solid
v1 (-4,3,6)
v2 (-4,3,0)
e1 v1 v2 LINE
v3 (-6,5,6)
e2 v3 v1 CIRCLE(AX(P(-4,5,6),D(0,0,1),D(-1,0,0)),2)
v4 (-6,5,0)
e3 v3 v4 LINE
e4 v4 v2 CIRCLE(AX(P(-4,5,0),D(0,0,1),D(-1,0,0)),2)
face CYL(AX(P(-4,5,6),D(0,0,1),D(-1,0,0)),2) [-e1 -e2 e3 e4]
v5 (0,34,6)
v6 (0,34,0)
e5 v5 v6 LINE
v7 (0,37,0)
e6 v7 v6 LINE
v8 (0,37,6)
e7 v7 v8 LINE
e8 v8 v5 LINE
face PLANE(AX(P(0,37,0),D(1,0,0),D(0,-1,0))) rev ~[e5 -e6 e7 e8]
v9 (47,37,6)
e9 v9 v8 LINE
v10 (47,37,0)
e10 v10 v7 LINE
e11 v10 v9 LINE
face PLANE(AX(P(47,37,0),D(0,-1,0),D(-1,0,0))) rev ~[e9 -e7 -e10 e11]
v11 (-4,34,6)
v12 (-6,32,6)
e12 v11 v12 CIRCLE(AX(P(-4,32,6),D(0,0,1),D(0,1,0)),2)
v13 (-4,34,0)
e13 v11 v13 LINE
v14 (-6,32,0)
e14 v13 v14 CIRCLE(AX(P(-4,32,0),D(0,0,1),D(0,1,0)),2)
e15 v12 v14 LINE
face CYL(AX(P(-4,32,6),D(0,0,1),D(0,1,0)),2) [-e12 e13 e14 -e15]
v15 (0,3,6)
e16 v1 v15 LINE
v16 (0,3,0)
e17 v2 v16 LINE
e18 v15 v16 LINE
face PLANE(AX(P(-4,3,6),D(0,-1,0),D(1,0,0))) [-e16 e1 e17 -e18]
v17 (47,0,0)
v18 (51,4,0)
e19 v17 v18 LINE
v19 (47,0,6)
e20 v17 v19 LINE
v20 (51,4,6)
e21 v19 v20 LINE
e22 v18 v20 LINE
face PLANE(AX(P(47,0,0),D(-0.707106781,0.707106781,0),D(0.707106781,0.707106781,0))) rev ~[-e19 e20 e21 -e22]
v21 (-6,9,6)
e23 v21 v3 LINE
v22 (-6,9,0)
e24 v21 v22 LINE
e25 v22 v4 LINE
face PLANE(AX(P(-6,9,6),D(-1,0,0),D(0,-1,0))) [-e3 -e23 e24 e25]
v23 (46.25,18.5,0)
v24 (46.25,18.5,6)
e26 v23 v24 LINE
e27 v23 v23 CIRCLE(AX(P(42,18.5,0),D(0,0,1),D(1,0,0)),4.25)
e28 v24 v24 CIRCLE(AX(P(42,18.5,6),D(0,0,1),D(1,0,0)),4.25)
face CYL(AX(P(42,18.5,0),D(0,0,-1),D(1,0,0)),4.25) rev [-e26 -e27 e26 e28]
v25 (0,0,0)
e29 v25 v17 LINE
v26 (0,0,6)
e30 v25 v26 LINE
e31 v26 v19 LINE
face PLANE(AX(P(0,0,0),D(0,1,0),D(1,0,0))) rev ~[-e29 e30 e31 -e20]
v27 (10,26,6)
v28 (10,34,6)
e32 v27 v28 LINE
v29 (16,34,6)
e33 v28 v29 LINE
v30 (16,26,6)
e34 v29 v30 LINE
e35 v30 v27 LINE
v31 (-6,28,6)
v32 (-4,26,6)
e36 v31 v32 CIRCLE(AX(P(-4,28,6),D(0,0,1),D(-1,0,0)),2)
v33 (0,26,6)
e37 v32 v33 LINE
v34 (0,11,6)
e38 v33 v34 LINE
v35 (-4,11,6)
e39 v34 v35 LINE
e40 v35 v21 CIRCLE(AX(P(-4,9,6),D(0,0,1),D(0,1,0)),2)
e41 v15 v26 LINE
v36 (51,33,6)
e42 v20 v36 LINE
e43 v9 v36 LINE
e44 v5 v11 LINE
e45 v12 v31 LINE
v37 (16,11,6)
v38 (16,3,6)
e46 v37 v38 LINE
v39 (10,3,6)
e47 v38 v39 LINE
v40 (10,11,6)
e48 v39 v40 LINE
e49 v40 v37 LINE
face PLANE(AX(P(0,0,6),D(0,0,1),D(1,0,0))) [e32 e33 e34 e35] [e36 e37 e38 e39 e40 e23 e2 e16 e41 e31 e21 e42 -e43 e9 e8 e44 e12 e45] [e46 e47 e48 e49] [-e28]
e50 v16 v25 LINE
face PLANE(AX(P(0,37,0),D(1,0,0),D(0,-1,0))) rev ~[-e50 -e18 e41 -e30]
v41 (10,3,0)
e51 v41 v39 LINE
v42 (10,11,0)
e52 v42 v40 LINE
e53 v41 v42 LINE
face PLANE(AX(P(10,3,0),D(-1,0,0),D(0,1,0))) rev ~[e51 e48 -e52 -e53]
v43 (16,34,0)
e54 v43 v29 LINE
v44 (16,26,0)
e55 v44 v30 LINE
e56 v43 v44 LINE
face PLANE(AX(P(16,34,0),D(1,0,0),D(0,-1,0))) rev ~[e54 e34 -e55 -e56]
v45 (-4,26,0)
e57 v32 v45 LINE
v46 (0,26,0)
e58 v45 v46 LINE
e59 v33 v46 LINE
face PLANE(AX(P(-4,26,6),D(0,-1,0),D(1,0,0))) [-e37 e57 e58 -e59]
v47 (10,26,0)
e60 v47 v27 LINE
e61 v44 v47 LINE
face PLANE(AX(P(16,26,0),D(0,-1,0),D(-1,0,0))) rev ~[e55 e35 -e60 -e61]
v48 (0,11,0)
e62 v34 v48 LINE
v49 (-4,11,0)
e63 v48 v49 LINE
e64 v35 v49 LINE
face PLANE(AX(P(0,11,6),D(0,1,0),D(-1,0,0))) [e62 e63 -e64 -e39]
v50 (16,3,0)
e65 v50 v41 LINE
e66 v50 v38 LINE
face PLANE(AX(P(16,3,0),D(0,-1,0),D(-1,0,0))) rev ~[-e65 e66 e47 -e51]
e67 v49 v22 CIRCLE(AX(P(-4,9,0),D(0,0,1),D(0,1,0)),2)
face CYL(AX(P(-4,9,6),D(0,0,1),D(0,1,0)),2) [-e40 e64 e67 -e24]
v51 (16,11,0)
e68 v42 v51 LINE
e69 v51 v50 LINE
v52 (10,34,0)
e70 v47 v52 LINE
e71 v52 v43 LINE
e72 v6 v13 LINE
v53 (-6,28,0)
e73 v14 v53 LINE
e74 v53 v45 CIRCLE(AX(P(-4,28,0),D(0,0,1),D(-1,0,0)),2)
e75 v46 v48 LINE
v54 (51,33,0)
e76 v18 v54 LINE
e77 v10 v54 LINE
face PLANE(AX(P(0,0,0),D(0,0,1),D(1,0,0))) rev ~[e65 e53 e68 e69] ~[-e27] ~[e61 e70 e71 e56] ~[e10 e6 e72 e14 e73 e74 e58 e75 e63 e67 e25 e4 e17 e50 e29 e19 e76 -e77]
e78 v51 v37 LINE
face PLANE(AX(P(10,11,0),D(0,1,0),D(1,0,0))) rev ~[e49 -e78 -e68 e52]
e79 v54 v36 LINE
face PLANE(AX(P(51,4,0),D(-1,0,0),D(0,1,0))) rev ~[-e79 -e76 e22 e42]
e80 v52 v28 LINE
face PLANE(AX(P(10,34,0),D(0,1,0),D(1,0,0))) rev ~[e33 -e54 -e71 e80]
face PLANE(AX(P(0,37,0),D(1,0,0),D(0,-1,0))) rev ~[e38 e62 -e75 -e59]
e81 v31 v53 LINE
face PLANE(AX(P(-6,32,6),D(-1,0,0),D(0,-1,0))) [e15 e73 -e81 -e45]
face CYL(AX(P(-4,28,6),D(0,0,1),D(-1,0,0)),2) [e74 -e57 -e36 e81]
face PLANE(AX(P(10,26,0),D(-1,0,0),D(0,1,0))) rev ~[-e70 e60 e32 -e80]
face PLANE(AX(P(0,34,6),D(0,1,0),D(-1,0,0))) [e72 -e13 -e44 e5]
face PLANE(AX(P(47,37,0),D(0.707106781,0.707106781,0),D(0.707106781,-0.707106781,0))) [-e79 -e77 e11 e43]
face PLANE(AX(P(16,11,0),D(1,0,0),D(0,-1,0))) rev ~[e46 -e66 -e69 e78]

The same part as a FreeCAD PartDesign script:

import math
import FreeCAD as App
import Part
import Sketcher
Q = App.Units.Quantity

doc = App.newDocument("Part")
body = doc.addObject("PartDesign::Body", "Body")

sketch1 = body.newObject("Sketcher::SketchObject", "Sketch")
sketch1.AttachmentSupport = (doc.getObject("XY_Plane"), [""])
sketch1.MapMode = "FlatFace"
sketch1.addGeometry([
    Part.LineSegment(App.Vector(0, 37, 0), App.Vector(0, 0, 0)),
    Part.LineSegment(App.Vector(0, 0, 0), App.Vector(47, 0, 0)),
    Part.LineSegment(App.Vector(47, 0, 0), App.Vector(51, 4, 0)),
    Part.LineSegment(App.Vector(51, 4, 0), App.Vector(51, 33, 0)),
    Part.LineSegment(App.Vector(51, 33, 0), App.Vector(47, 37, 0)),
    Part.LineSegment(App.Vector(47, 37, 0), App.Vector(0, 37, 0)),
    Part.LineSegment(App.Vector(10, 3, 0), App.Vector(10, 11, 0)),
    Part.LineSegment(App.Vector(10, 11, 0), App.Vector(16, 11, 0)),
    Part.LineSegment(App.Vector(16, 11, 0), App.Vector(16, 3, 0)),
    Part.LineSegment(App.Vector(16, 3, 0), App.Vector(10, 3, 0)),
    Part.LineSegment(App.Vector(10, 26, 0), App.Vector(10, 34, 0)),
    Part.LineSegment(App.Vector(10, 34, 0), App.Vector(16, 34, 0)),
    Part.LineSegment(App.Vector(16, 34, 0), App.Vector(16, 26, 0)),
    Part.LineSegment(App.Vector(16, 26, 0), App.Vector(10, 26, 0)),
    Part.Circle(App.Vector(42, 18.5, 0), App.Vector(0, 0, 1), 4.2),
], False)
sketch1.addConstraint([
    Sketcher.Constraint("Coincident", 0, 2, 1, 1),
    Sketcher.Constraint("Coincident", 1, 2, 2, 1),
    Sketcher.Constraint("Coincident", 2, 2, 3, 1),
    Sketcher.Constraint("Coincident", 3, 2, 4, 1),
    Sketcher.Constraint("Coincident", 4, 2, 5, 1),
    Sketcher.Constraint("Coincident", 5, 2, 0, 1),
    Sketcher.Constraint("Coincident", 6, 2, 7, 1),
    Sketcher.Constraint("Coincident", 7, 2, 8, 1),
    Sketcher.Constraint("Coincident", 8, 2, 9, 1),
    Sketcher.Constraint("Coincident", 9, 2, 6, 1),
    Sketcher.Constraint("Coincident", 10, 2, 11, 1),
    Sketcher.Constraint("Coincident", 11, 2, 12, 1),
    Sketcher.Constraint("Coincident", 12, 2, 13, 1),
    Sketcher.Constraint("Coincident", 13, 2, 10, 1),
    Sketcher.Constraint("Vertical", 0),
    Sketcher.Constraint("Horizontal", 1),
    Sketcher.Constraint("Vertical", 3),
    Sketcher.Constraint("Horizontal", 5),
    Sketcher.Constraint("Vertical", 6),
    Sketcher.Constraint("Horizontal", 7),
    Sketcher.Constraint("Vertical", 8),
    Sketcher.Constraint("Horizontal", 9),
    Sketcher.Constraint("Vertical", 10),
    Sketcher.Constraint("Horizontal", 11),
    Sketcher.Constraint("Vertical", 12),
    Sketcher.Constraint("Horizontal", 13),
    Sketcher.Constraint("Coincident", 0, 2, -1, 1),
    Sketcher.Constraint("Perpendicular", 2, 4),
    Sketcher.Constraint("Vertical", 1, 2, 4, 2),
    Sketcher.Constraint("Vertical", 9, 2, 10, 2),
    Sketcher.Constraint("Vertical", 8, 2, 11, 2),
    Sketcher.Constraint("Equal", 8, 10),
    Sketcher.Constraint("Equal", 2, 4),
    Sketcher.Constraint("Diameter", 14, Q("8.5 mm")),
    Sketcher.Constraint("DistanceX", 7, 1, 7, 2, Q("6 mm")),
    Sketcher.Constraint("DistanceY", 0, 2, 0, 1, Q("37 mm")),
    Sketcher.Constraint("DistanceY", 6, 1, 6, 2, Q("8 mm")),
    Sketcher.Constraint("DistanceY", -1, 1, 2, 2, Q("4 mm")),
    Sketcher.Constraint("DistanceX", -1, 1, 6, 2, Q("10 mm")),
    Sketcher.Constraint("DistanceY", -1, 1, 12, 2, Q("26 mm")),
    Sketcher.Constraint("DistanceX", 14, 3, 2, 2, Q("9 mm")),
    Sketcher.Constraint("DistanceY", 6, 2, 5, 2, Q("26 mm")),
    Sketcher.Constraint("DistanceX", 6, 2, 14, 3, Q("32 mm")),
    Sketcher.Constraint("DistanceY", -1, 1, 14, 3, Q("18.5 mm")),
])
pad1 = body.newObject("PartDesign::Pad", "Pad")
pad1.Profile = sketch1
pad1.Length = 6

sketch2 = body.newObject("Sketcher::SketchObject", "Sketch001")
sketch2.AttachmentSupport = (doc.getObject("XY_Plane"), [""])
sketch2.MapMode = "FlatFace"
sketch2.AttachmentOffset = App.Placement(App.Vector(0, 0, 6), App.Rotation())
sketch2.addGeometry([
    Part.LineSegment(App.Vector(0, 3, 0), App.Vector(0, 11, 0)),
    Part.LineSegment(App.Vector(0, 11, 0), App.Vector(-4, 11, 0)),
    Part.ArcOfCircle(Part.Circle(App.Vector(-4, 9, 0), App.Vector(0, 0, 1), 2), math.radians(90), math.radians(180)),
    Part.LineSegment(App.Vector(-6, 9, 0), App.Vector(-6, 5, 0)),
    Part.ArcOfCircle(Part.Circle(App.Vector(-4, 5, 0), App.Vector(0, 0, 1), 2), math.radians(180), math.radians(270)),
    Part.LineSegment(App.Vector(-4, 3, 0), App.Vector(0, 3, 0)),
    Part.LineSegment(App.Vector(0, 26, 0), App.Vector(0, 34, 0)),
    Part.LineSegment(App.Vector(0, 34, 0), App.Vector(-4, 34, 0)),
    Part.ArcOfCircle(Part.Circle(App.Vector(-4, 32, 0), App.Vector(0, 0, 1), 2), math.radians(90), math.radians(180)),
    Part.LineSegment(App.Vector(-6, 32, 0), App.Vector(-6, 28, 0)),
    Part.ArcOfCircle(Part.Circle(App.Vector(-4, 28, 0), App.Vector(0, 0, 1), 2), math.radians(180), math.radians(270)),
    Part.LineSegment(App.Vector(-4, 26, 0), App.Vector(0, 26, 0)),
], False)
sketch2.addConstraint([
    Sketcher.Constraint("Coincident", 0, 2, 1, 1),
    Sketcher.Constraint("Tangent", 1, 2, 2, 1),
    Sketcher.Constraint("Tangent", 2, 2, 3, 1),
    Sketcher.Constraint("Tangent", 3, 2, 4, 1),
    Sketcher.Constraint("Tangent", 4, 2, 5, 1),
    Sketcher.Constraint("Coincident", 5, 2, 0, 1),
    Sketcher.Constraint("Coincident", 6, 2, 7, 1),
    Sketcher.Constraint("Tangent", 7, 2, 8, 1),
    Sketcher.Constraint("Tangent", 8, 2, 9, 1),
    Sketcher.Constraint("Tangent", 9, 2, 10, 1),
    Sketcher.Constraint("Tangent", 10, 2, 11, 1),
    Sketcher.Constraint("Coincident", 11, 2, 6, 1),
    Sketcher.Constraint("Vertical", 0),
    Sketcher.Constraint("Horizontal", 1),
    Sketcher.Constraint("Vertical", 3),
    Sketcher.Constraint("Horizontal", 5),
    Sketcher.Constraint("Vertical", 6),
    Sketcher.Constraint("Horizontal", 7),
    Sketcher.Constraint("Vertical", 9),
    Sketcher.Constraint("Horizontal", 11),
    Sketcher.Constraint("Equal", 2, 4),
    Sketcher.Constraint("Equal", 4, 8),
    Sketcher.Constraint("Equal", 8, 10),
    Sketcher.Constraint("PointOnObject", 0, 2, -2),
    Sketcher.Constraint("PointOnObject", 6, 2, -2),
    Sketcher.Constraint("Vertical", 4, 3, 8, 3),
    Sketcher.Constraint("Equal", 11, 3),
    Sketcher.Constraint("Equal", 0, 6),
    Sketcher.Constraint("Radius", 2, Q("2 mm")),
    Sketcher.Constraint("DistanceY", 0, 1, 0, 2, Q("8 mm")),
    Sketcher.Constraint("DistanceY", -1, 1, 2, 3, Q("9 mm")),
    Sketcher.Constraint("DistanceY", -1, 1, 8, 3, Q("32 mm")),
])
pad2 = body.newObject("PartDesign::Pad", "Pad001")
pad2.Profile = sketch2
pad2.Length = 6
pad2.Reversed = True

doc.recompute()
